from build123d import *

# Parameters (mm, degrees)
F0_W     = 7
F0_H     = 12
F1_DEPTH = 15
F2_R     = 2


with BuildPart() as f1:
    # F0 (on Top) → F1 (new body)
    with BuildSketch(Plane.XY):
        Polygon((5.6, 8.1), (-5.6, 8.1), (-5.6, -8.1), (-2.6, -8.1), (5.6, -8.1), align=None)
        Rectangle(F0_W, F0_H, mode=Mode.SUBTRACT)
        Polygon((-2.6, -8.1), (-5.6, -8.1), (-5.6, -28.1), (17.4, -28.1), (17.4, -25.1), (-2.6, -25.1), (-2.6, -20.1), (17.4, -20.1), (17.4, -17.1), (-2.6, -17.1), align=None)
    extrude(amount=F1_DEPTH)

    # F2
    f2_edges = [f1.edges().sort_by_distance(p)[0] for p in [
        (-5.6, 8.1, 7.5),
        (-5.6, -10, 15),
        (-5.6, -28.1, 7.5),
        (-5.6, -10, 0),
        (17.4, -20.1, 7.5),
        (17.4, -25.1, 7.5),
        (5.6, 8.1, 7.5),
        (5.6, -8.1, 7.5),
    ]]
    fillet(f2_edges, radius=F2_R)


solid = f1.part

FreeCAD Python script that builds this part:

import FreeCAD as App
import Part
import Sketcher


def edges_at(feature, points):
    """Names of the edges that pass closest to the given points."""
    edges = feature.Shape.Edges
    near = lambda p: min(range(len(edges)), key=lambda i: edges[i].distToShape(Part.Vertex(*p))[0])
    return sorted({f"Edge{near(p) + 1}" for p in points})

doc = App.newDocument("Part")
body = doc.addObject("PartDesign::Body", "Body")

sketch1 = body.newObject("Sketcher::SketchObject", "Sketch")
sketch1.AttachmentSupport = (doc.getObject("XY_Plane"), [""])
sketch1.MapMode = "FlatFace"
sketch1.addGeometry(Part.LineSegment(App.Vector(5.6, 8.1, 0), App.Vector(-5.6, 8.1, 0)), False)
sketch1.addGeometry(Part.LineSegment(App.Vector(-5.6, 8.1, 0), App.Vector(-5.6, -28.1, 0)), False)
sketch1.addGeometry(Part.LineSegment(App.Vector(-5.6, -28.1, 0), App.Vector(17.4, -28.1, 0)), False)
sketch1.addGeometry(Part.LineSegment(App.Vector(17.4, -28.1, 0), App.Vector(17.4, -25.1, 0)), False)
sketch1.addGeometry(Part.LineSegment(App.Vector(17.4, -25.1, 0), App.Vector(-2.6, -25.1, 0)), False)
sketch1.addGeometry(Part.LineSegment(App.Vector(-2.6, -25.1, 0), App.Vector(-2.6, -20.1, 0)), False)
sketch1.addGeometry(Part.LineSegment(App.Vector(-2.6, -20.1, 0), App.Vector(17.4, -20.1, 0)), False)
sketch1.addGeometry(Part.LineSegment(App.Vector(17.4, -20.1, 0), App.Vector(17.4, -17.1, 0)), False)
sketch1.addGeometry(Part.LineSegment(App.Vector(17.4, -17.1, 0), App.Vector(-2.6, -17.1, 0)), False)
sketch1.addGeometry(Part.LineSegment(App.Vector(-2.6, -17.1, 0), App.Vector(-2.6, -8.1, 0)), False)
sketch1.addGeometry(Part.LineSegment(App.Vector(-2.6, -8.1, 0), App.Vector(5.6, -8.1, 0)), False)
sketch1.addGeometry(Part.LineSegment(App.Vector(5.6, -8.1, 0), App.Vector(5.6, 8.1, 0)), False)
sketch1.addGeometry(Part.LineSegment(App.Vector(3.5, -6, 0), App.Vector(-3.5, -6, 0)), False)
sketch1.addGeometry(Part.LineSegment(App.Vector(-3.5, -6, 0), App.Vector(-3.5, 6, 0)), False)
sketch1.addGeometry(Part.LineSegment(App.Vector(-3.5, 6, 0), App.Vector(3.5, 6, 0)), False)
sketch1.addGeometry(Part.LineSegment(App.Vector(3.5, 6, 0), App.Vector(3.5, -6, 0)), False)
sketch1.addConstraint(Sketcher.Constraint("Coincident", 0, 2, 1, 1))
sketch1.addConstraint(Sketcher.Constraint("Coincident", 1, 2, 2, 1))
sketch1.addConstraint(Sketcher.Constraint("Coincident", 2, 2, 3, 1))
sketch1.addConstraint(Sketcher.Constraint("Coincident", 3, 2, 4, 1))
sketch1.addConstraint(Sketcher.Constraint("Coincident", 4, 2, 5, 1))
sketch1.addConstraint(Sketcher.Constraint("Coincident", 5, 2, 6, 1))
sketch1.addConstraint(Sketcher.Constraint("Coincident", 6, 2, 7, 1))
sketch1.addConstraint(Sketcher.Constraint("Coincident", 7, 2, 8, 1))
sketch1.addConstraint(Sketcher.Constraint("Coincident", 8, 2, 9, 1))
sketch1.addConstraint(Sketcher.Constraint("Coincident", 9, 2, 10, 1))
sketch1.addConstraint(Sketcher.Constraint("Coincident", 10, 2, 11, 1))
sketch1.addConstraint(Sketcher.Constraint("Coincident", 11, 2, 0, 1))
sketch1.addConstraint(Sketcher.Constraint("Coincident", 12, 2, 13, 1))
sketch1.addConstraint(Sketcher.Constraint("Coincident", 13, 2, 14, 1))
sketch1.addConstraint(Sketcher.Constraint("Coincident", 14, 2, 15, 1))
sketch1.addConstraint(Sketcher.Constraint("Coincident", 15, 2, 12, 1))
sketch1.addConstraint(Sketcher.Constraint("Horizontal", 0))
sketch1.addConstraint(Sketcher.Constraint("Vertical", 1))
sketch1.addConstraint(Sketcher.Constraint("Horizontal", 2))
sketch1.addConstraint(Sketcher.Constraint("Vertical", 3))
sketch1.addConstraint(Sketcher.Constraint("Horizontal", 4))
sketch1.addConstraint(Sketcher.Constraint("Vertical", 5))
sketch1.addConstraint(Sketcher.Constraint("Horizontal", 6))
sketch1.addConstraint(Sketcher.Constraint("Vertical", 7))
sketch1.addConstraint(Sketcher.Constraint("Horizontal", 8))
sketch1.addConstraint(Sketcher.Constraint("Vertical", 9))
sketch1.addConstraint(Sketcher.Constraint("Horizontal", 10))
sketch1.addConstraint(Sketcher.Constraint("Vertical", 11))
sketch1.addConstraint(Sketcher.Constraint("Horizontal", 12))
sketch1.addConstraint(Sketcher.Constraint("Vertical", 13))
sketch1.addConstraint(Sketcher.Constraint("Horizontal", 14))
sketch1.addConstraint(Sketcher.Constraint("Vertical", 15))
sketch1.addConstraint(Sketcher.Constraint("Symmetric", 0, 2, 10, 2, -1, 1))
sketch1.addConstraint(Sketcher.Constraint("Symmetric", 12, 2, 14, 2, -1, 1))
sketch1.addConstraint(Sketcher.Constraint("Vertical", 3, 2, 6, 2))
sketch1.addConstraint(Sketcher.Constraint("Vertical", 5, 2, 8, 2))
sketch1.addConstraint(Sketcher.Constraint("Equal", 3, 7))
sketch1.addConstraint(Sketcher.Constraint("DistanceX", 2, 1, 2, 2, 23.0))
sketch1.addConstraint(Sketcher.Constraint("DistanceX", 4, 2, 4, 1, 20.0))
sketch1.addConstraint(Sketcher.Constraint("DistanceX", 12, 2, 12, 1, 7.0))
sketch1.addConstraint(Sketcher.Constraint("DistanceY", 3, 1, 3, 2, 3.0))
sketch1.addConstraint(Sketcher.Constraint("DistanceY", 5, 1, 5, 2, 5.0))
sketch1.addConstraint(Sketcher.Constraint("DistanceY", 9, 1, 9, 2, 9.0))
sketch1.addConstraint(Sketcher.Constraint("DistanceY", 13, 1, 13, 2, 12.0))
sketch1.addConstraint(Sketcher.Constraint("DistanceX", 0, 2, 0, 1, 11.2))
sketch1.addConstraint(Sketcher.Constraint("DistanceY", 1, 2, 1, 1, 36.2))
pad1 = body.newObject("PartDesign::Pad", "Pad")
pad1.Profile = sketch1
pad1.Length = 15
doc.recompute()

fillet = body.newObject("PartDesign::Fillet", "Fillet")
fillet.Base = (pad1, edges_at(pad1, [
    (-5.6, 8.1, 7.5),
    (-5.6, -10, 15),
    (-5.6, -28.1, 7.5),
    (-5.6, -10, 0),
    (17.4, -20.1, 7.5),
    (17.4, -25.1, 7.5),
    (5.6, 8.1, 7.5),
    (5.6, -8.1, 7.5),
]))
fillet.Radius = 2

doc.recompute()
